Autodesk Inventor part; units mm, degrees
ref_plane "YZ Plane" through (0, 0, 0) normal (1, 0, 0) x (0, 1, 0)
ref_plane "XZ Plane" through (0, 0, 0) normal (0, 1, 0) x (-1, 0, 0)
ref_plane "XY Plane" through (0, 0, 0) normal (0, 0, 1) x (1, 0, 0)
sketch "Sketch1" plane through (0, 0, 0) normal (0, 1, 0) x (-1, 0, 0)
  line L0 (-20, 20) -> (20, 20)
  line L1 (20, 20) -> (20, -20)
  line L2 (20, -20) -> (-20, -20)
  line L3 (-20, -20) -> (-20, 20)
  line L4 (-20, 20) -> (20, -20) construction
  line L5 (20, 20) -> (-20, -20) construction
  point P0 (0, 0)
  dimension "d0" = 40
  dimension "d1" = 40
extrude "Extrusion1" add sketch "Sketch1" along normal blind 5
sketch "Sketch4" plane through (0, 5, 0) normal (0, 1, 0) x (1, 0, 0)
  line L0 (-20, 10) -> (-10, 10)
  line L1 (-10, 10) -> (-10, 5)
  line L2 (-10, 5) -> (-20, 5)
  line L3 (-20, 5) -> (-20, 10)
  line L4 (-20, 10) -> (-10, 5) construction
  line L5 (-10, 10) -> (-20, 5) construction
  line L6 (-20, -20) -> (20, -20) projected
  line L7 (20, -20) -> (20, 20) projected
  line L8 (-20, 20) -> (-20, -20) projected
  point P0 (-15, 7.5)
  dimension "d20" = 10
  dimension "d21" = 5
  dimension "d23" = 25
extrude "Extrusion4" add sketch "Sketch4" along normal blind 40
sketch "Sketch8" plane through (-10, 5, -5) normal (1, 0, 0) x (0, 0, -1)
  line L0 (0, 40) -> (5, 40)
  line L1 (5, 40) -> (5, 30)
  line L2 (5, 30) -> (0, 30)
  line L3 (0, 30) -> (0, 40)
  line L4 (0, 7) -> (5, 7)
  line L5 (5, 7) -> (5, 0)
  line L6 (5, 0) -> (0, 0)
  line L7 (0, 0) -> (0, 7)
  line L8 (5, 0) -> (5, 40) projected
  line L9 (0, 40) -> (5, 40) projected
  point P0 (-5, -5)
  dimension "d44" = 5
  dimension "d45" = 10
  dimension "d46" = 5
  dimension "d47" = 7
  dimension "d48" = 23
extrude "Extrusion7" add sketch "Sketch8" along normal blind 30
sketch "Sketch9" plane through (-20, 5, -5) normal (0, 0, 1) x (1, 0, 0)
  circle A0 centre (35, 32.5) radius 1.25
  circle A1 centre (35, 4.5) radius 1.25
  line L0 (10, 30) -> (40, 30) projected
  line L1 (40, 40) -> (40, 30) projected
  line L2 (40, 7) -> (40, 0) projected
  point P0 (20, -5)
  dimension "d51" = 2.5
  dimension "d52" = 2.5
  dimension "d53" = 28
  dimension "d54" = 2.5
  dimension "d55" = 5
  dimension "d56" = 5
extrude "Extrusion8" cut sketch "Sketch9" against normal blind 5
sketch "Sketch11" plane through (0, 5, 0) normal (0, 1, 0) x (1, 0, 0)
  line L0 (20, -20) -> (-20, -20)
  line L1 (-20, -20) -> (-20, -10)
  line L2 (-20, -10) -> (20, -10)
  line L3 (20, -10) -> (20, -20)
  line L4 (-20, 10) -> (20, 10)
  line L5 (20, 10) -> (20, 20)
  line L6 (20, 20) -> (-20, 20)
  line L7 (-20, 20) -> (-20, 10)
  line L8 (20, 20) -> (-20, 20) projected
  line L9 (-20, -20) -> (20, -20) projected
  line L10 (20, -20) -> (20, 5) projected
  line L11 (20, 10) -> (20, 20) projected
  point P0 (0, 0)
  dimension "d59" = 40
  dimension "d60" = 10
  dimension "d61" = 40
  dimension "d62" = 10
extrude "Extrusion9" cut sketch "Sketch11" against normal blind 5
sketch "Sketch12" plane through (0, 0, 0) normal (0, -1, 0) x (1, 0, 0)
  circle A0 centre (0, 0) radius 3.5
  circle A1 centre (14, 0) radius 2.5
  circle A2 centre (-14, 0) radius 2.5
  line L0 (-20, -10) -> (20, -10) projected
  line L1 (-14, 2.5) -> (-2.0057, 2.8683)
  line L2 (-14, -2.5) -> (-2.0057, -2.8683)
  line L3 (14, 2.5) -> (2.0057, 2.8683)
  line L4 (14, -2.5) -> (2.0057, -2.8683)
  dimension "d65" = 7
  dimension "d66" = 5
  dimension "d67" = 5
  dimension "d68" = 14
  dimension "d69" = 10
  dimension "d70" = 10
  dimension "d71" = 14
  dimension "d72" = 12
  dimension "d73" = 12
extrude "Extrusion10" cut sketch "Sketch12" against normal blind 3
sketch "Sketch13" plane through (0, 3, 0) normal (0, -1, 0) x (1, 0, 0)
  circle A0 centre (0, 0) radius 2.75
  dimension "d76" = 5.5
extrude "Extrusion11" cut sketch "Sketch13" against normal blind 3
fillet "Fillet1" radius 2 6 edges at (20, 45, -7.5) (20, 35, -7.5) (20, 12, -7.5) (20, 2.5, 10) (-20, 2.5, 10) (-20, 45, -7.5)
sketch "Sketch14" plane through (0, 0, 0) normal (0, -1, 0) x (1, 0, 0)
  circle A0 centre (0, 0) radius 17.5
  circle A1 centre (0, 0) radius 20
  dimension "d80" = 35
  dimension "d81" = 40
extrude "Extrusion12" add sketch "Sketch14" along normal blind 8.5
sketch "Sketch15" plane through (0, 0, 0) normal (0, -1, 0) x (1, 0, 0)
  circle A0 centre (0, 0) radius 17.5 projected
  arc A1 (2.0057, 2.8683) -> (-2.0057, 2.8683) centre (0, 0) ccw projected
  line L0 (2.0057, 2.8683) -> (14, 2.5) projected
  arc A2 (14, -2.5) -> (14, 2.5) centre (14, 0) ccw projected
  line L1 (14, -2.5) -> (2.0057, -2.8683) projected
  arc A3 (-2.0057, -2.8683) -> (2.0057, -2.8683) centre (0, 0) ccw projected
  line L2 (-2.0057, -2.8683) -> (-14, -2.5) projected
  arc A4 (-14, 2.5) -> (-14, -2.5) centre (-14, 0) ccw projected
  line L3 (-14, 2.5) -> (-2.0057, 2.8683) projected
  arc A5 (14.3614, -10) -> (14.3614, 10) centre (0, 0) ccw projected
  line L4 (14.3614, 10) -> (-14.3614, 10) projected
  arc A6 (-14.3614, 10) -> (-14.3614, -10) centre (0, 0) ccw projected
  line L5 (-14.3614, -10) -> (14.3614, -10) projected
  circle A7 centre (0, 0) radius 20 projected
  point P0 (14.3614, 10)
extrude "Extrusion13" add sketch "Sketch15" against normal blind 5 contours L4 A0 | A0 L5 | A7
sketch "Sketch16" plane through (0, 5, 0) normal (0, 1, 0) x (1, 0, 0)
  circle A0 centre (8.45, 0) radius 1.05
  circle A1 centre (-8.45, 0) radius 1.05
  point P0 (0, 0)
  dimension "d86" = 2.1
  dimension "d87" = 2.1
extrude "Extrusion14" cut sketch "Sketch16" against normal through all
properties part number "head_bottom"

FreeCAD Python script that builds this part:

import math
import FreeCAD as App
import Part
import Sketcher

V = App.Vector
Q = App.Units.Quantity


def edges_at(feature, points):
    """Names of the edges that pass closest to the given points."""
    edges = feature.Shape.Edges
    near = lambda p: min(range(len(edges)), key=lambda i: edges[i].distToShape(Part.Vertex(*p))[0])
    return sorted({f"Edge{near(p) + 1}" for p in points})

doc = App.newDocument("Part")
body = doc.addObject("PartDesign::Body", "Body")

sketch1 = doc.addObject("Sketcher::SketchObject", "Sketch")
body.addObject(sketch1)
sketch1.AttachmentSupport = (doc.XZ_Plane, [""])
sketch1.MapMode = "FlatFace"
sketch1.addGeometry([
    Part.LineSegment(V(-20, 20, 0), V(20, 20, 0)),
    Part.LineSegment(V(20, 20, 0), V(20, -20, 0)),
    Part.LineSegment(V(20, -20, 0), V(-20, -20, 0)),
    Part.LineSegment(V(-20, -20, 0), V(-20, 20, 0)),
], False)
sketch1.addConstraint([
    Sketcher.Constraint("Coincident", 0, 2, 1, 1),
    Sketcher.Constraint("Coincident", 1, 2, 2, 1),
    Sketcher.Constraint("Coincident", 2, 2, 3, 1),
    Sketcher.Constraint("Coincident", 3, 2, 0, 1),
    Sketcher.Constraint("Horizontal", 0),
    Sketcher.Constraint("Vertical", 1),
    Sketcher.Constraint("Horizontal", 2),
    Sketcher.Constraint("Vertical", 3),
    Sketcher.Constraint("Symmetric", 0, 2, 2, 2, -1, 1),
    Sketcher.Constraint("Equal", 2, 1),
    Sketcher.Constraint("DistanceX", 0, 1, 0, 2, Q("40 mm")),
])
pad1 = doc.addObject("PartDesign::Pad", "Pad")
body.addObject(pad1)
pad1.Profile = sketch1
pad1.Length = 5
pad1.Reversed = True

sketch2 = doc.addObject("Sketcher::SketchObject", "Sketch001")
body.addObject(sketch2)
sketch2.AttachmentSupport = (doc.XZ_Plane, [""])
sketch2.MapMode = "FlatFace"
sketch2.AttachmentOffset = App.Placement(V(0, 0, -5), App.Rotation())
sketch2.addGeometry([
    Part.LineSegment(V(-10, -10, 0), V(-20, -10, 0)),
    Part.LineSegment(V(-20, -10, 0), V(-20, -5, 0)),
    Part.LineSegment(V(-20, -5, 0), V(-10, -5, 0)),
    Part.LineSegment(V(-10, -5, 0), V(-10, -10, 0)),
], False)
sketch2.addConstraint([
    Sketcher.Constraint("Coincident", 0, 2, 1, 1),
    Sketcher.Constraint("Coincident", 1, 2, 2, 1),
    Sketcher.Constraint("Coincident", 2, 2, 3, 1),
    Sketcher.Constraint("Coincident", 3, 2, 0, 1),
    Sketcher.Constraint("Horizontal", 0),
    Sketcher.Constraint("Vertical", 1),
    Sketcher.Constraint("Horizontal", 2),
    Sketcher.Constraint("Vertical", 3),
    Sketcher.Constraint("DistanceX", 0, 2, 0, 1, Q("10 mm")),
    Sketcher.Constraint("DistanceY", 1, 1, 1, 2, Q("5 mm")),
    Sketcher.Constraint("DistanceY", 0, 2, -1, 1, Q("10 mm")),
    Sketcher.Constraint("DistanceX", 2, 2, -1, 1, Q("10 mm")),
])
pad2 = doc.addObject("PartDesign::Pad", "Pad001")
body.addObject(pad2)
pad2.Profile = sketch2
pad2.Length = 40
pad2.Reversed = True

sketch3 = doc.addObject("Sketcher::SketchObject", "Sketch002")
body.addObject(sketch3)
sketch3.AttachmentSupport = (doc.YZ_Plane, [""])
sketch3.MapMode = "FlatFace"
sketch3.AttachmentOffset = App.Placement(V(0, 0, -10), App.Rotation())
sketch3.addGeometry([
    Part.LineSegment(V(5, -10, 0), V(12, -10, 0)),
    Part.LineSegment(V(12, -10, 0), V(12, -5, 0)),
    Part.LineSegment(V(12, -5, 0), V(5, -5, 0)),
    Part.LineSegment(V(5, -5, 0), V(5, -10, 0)),
    Part.LineSegment(V(45, -10, 0), V(45, -5, 0)),
    Part.LineSegment(V(45, -5, 0), V(35, -5, 0)),
    Part.LineSegment(V(35, -5, 0), V(35, -10, 0)),
    Part.LineSegment(V(35, -10, 0), V(45, -10, 0)),
], False)
sketch3.addConstraint([
    Sketcher.Constraint("Coincident", 0, 2, 1, 1),
    Sketcher.Constraint("Coincident", 1, 2, 2, 1),
    Sketcher.Constraint("Coincident", 2, 2, 3, 1),
    Sketcher.Constraint("Coincident", 3, 2, 0, 1),
    Sketcher.Constraint("Coincident", 4, 2, 5, 1),
    Sketcher.Constraint("Coincident", 5, 2, 6, 1),
    Sketcher.Constraint("Coincident", 6, 2, 7, 1),
    Sketcher.Constraint("Coincident", 7, 2, 4, 1),
    Sketcher.Constraint("Horizontal", 0),
    Sketcher.Constraint("Vertical", 1),
    Sketcher.Constraint("Horizontal", 2),
    Sketcher.Constraint("Vertical", 3),
    Sketcher.Constraint("Vertical", 4),
    Sketcher.Constraint("Horizontal", 5),
    Sketcher.Constraint("Vertical", 6),
    Sketcher.Constraint("Horizontal", 7),
    Sketcher.Constraint("Horizontal", 2, 2, 4, 2),
    Sketcher.Constraint("Horizontal", 3, 2, 6, 2),
    Sketcher.Constraint("DistanceX", 0, 1, 0, 2, Q("7 mm")),
    Sketcher.Constraint("DistanceX", 5, 2, 5, 1, Q("10 mm")),
    Sketcher.Constraint("DistanceY", 1, 1, 1, 2, Q("5 mm")),
    Sketcher.Constraint("DistanceY", 0, 2, -1, 1, Q("10 mm")),
    Sketcher.Constraint("DistanceX", -1, 1, 2, 2, Q("5 mm")),
    Sketcher.Constraint("DistanceX", 1, 2, 5, 2, Q("23 mm")),
])
pad3 = doc.addObject("PartDesign::Pad", "Pad002")
body.addObject(pad3)
pad3.Profile = sketch3
pad3.Length = 30

sketch4 = doc.addObject("Sketcher::SketchObject", "Sketch003")
body.addObject(sketch4)
sketch4.AttachmentSupport = (doc.XY_Plane, [""])
sketch4.MapMode = "FlatFace"
sketch4.AttachmentOffset = App.Placement(V(0, 0, -5), App.Rotation())
sketch4.addGeometry([
    Part.Circle(V(15, 37.5, 0), V(0, 0, 1), 1.2),
    Part.Circle(V(15, 9.5, 0), V(0, 0, 1), 1.2),
], False)
sketch4.addConstraint([
    Sketcher.Constraint("Equal", 0, 1),
    Sketcher.Constraint("Vertical", 0, 3, 1, 3),
    Sketcher.Constraint("Diameter", 0, Q("2.5 mm")),
    Sketcher.Constraint("DistanceY", 1, 3, 0, 3, Q("28 mm")),
    Sketcher.Constraint("DistanceX", -1, 1, 0, 3, Q("15 mm")),
    Sketcher.Constraint("DistanceY", -1, 1, 0, 3, Q("37.5 mm")),
])
pocket1 = doc.addObject("PartDesign::Pocket", "Pocket")
body.addObject(pocket1)
pocket1.Profile = sketch4
pocket1.Length = 5

sketch5 = doc.addObject("Sketcher::SketchObject", "Sketch004")
body.addObject(sketch5)
sketch5.AttachmentSupport = (doc.XZ_Plane, [""])
sketch5.MapMode = "FlatFace"
sketch5.AttachmentOffset = App.Placement(V(0, 0, -5), App.Rotation())
sketch5.addGeometry([
    Part.LineSegment(V(-20, 20, 0), V(20, 20, 0)),
    Part.LineSegment(V(20, 20, 0), V(20, 10, 0)),
    Part.LineSegment(V(20, 10, 0), V(-20, 10, 0)),
    Part.LineSegment(V(-20, 10, 0), V(-20, 20, 0)),
    Part.LineSegment(V(-20, -20, 0), V(-20, -10, 0)),
    Part.LineSegment(V(-20, -10, 0), V(20, -10, 0)),
    Part.LineSegment(V(20, -10, 0), V(20, -20, 0)),
    Part.LineSegment(V(20, -20, 0), V(-20, -20, 0)),
], False)
sketch5.addConstraint([
    Sketcher.Constraint("Coincident", 0, 2, 1, 1),
    Sketcher.Constraint("Coincident", 1, 2, 2, 1),
    Sketcher.Constraint("Coincident", 2, 2, 3, 1),
    Sketcher.Constraint("Coincident", 3, 2, 0, 1),
    Sketcher.Constraint("Coincident", 4, 2, 5, 1),
    Sketcher.Constraint("Coincident", 5, 2, 6, 1),
    Sketcher.Constraint("Coincident", 6, 2, 7, 1),
    Sketcher.Constraint("Coincident", 7, 2, 4, 1),
    Sketcher.Constraint("Horizontal", 0),
    Sketcher.Constraint("Vertical", 1),
    Sketcher.Constraint("Horizontal", 2),
    Sketcher.Constraint("Vertical", 3),
    Sketcher.Constraint("Vertical", 4),
    Sketcher.Constraint("Horizontal", 5),
    Sketcher.Constraint("Vertical", 6),
    Sketcher.Constraint("Horizontal", 7),
    Sketcher.Constraint("Symmetric", 1, 2, 4, 2, -1, 1),
    Sketcher.Constraint("Symmetric", 3, 2, 6, 2, -1, 1),
    Sketcher.Constraint("Vertical", 3, 2, 4, 2),
    Sketcher.Constraint("DistanceX", 0, 1, 0, 2, Q("40 mm")),
    Sketcher.Constraint("DistanceY", 1, 2, 1, 1, Q("10 mm")),
    Sketcher.Constraint("DistanceY", -1, 1, 1, 2, Q("10 mm")),
])
pocket2 = doc.addObject("PartDesign::Pocket", "Pocket001")
body.addObject(pocket2)
pocket2.Profile = sketch5
pocket2.Length = 5
pocket2.Reversed = True

sketch6 = doc.addObject("Sketcher::SketchObject", "Sketch005")
body.addObject(sketch6)
sketch6.AttachmentSupport = (doc.XZ_Plane, [""])
sketch6.MapMode = "FlatFace"
sketch6.addGeometry([
    Part.ArcOfCircle(Part.Circle(V(0, 0, 0), V(0, 0, 1), 3.5), math.radians(-125), math.radians(-55)),
    Part.LineSegment(V(2, -2.9, 0), V(14, -2.5, 0)),
    Part.ArcOfCircle(Part.Circle(V(14, 0, 0), V(0, 0, 1), 2.5), math.radians(-90), math.radians(90)),
    Part.LineSegment(V(14, 2.5, 0), V(2, 2.9, 0)),
    Part.ArcOfCircle(Part.Circle(V(0, 0, 0), V(0, 0, 1), 3.5), math.radians(55), math.radians(125)),
    Part.LineSegment(V(-2, 2.9, 0), V(-14, 2.5, 0)),
    Part.ArcOfCircle(Part.Circle(V(-14, 0, 0), V(0, 0, 1), 2.5), math.radians(90), math.radians(270)),
    Part.LineSegment(V(-14, -2.5, 0), V(-2, -2.9, 0)),
], False)
sketch6.addConstraint([
    Sketcher.Constraint("Coincident", 0, 2, 1, 1),
    Sketcher.Constraint("Coincident", 1, 2, 2, 1),
    Sketcher.Constraint("Coincident", 2, 2, 3, 1),
    Sketcher.Constraint("Coincident", 3, 2, 4, 1),
    Sketcher.Constraint("Coincident", 4, 2, 5, 1),
    Sketcher.Constraint("Coincident", 5, 2, 6, 1),
    Sketcher.Constraint("Coincident", 6, 2, 7, 1),
    Sketcher.Constraint("Coincident", 7, 2, 0, 1),
    Sketcher.Constraint("Coincident", 0, 3, -1, 1),
    Sketcher.Constraint("Coincident", 4, 3, -1, 1),
    Sketcher.Constraint("Equal", 0, 4),
    Sketcher.Constraint("Equal", 2, 6),
    Sketcher.Constraint("Symmetric", 2, 3, 6, 3, -1, 1),
    Sketcher.Constraint("Symmetric", 2, 2, 5, 2, -2),
    Sketcher.Constraint("Parallel", 1, 5),
    Sketcher.Constraint("Parallel", 3, 7),
    Sketcher.Constraint("Horizontal", 3, 2, 4, 2),
    Sketcher.Constraint("Horizontal", 0, 2, 7, 2),
    Sketcher.Constraint("Vertical", 2, 3, 1, 2),
    Sketcher.Constraint("Vertical", 1, 2, 2, 2),
    Sketcher.Constraint("Radius", 0, Q("3.5 mm")),
    Sketcher.Constraint("Radius", 2, Q("2.5 mm")),
    Sketcher.Constraint("Distance", 1, Q("12 mm")),
    Sketcher.Constraint("DistanceX", -1, 1, 2, 3, Q("14 mm")),
])
pocket3 = doc.addObject("PartDesign::Pocket", "Pocket002")
body.addObject(pocket3)
pocket3.Profile = sketch6
pocket3.Length = 3

sketch7 = doc.addObject("Sketcher::SketchObject", "Sketch006")
body.addObject(sketch7)
sketch7.AttachmentSupport = (doc.XZ_Plane, [""])
sketch7.MapMode = "FlatFace"
sketch7.AttachmentOffset = App.Placement(V(0, 0, -3), App.Rotation())
sketch7.addGeometry(Part.Circle(V(0, 0, 0), V(0, 0, 1), 2.8), False)
sketch7.addConstraint([
    Sketcher.Constraint("Coincident", 0, 3, -1, 1),
    Sketcher.Constraint("Diameter", 0, Q("5.5 mm")),
])
pocket4 = doc.addObject("PartDesign::Pocket", "Pocket003")
body.addObject(pocket4)
pocket4.Profile = sketch7
pocket4.Length = 3
doc.recompute()

fillet = doc.addObject("PartDesign::Fillet", "Fillet")
body.addObject(fillet)
fillet.Base = (pocket4, edges_at(pocket4, [
    (20, 45, -7.5),
    (20, 35, -7.5),
    (20, 12, -7.5),
    (20, 2.5, 10),
    (-20, 2.5, 10),
    (-20, 45, -7.5),
]))
fillet.Radius = 2

sketch8 = doc.addObject("Sketcher::SketchObject", "Sketch007")
body.addObject(sketch8)
sketch8.AttachmentSupport = (doc.XZ_Plane, [""])
sketch8.MapMode = "FlatFace"
sketch8.addGeometry([
    Part.Circle(V(0, 0, 0), V(0, 0, 1), 20),
    Part.Circle(V(0, 0, 0), V(0, 0, 1), 18),
], False)
sketch8.addConstraint([
    Sketcher.Constraint("Coincident", 0, 3, -1, 1),
    Sketcher.Constraint("Coincident", 1, 3, -1, 1),
    Sketcher.Constraint("Diameter", 0, Q("40 mm")),
    Sketcher.Constraint("Diameter", 1, Q("35 mm")),
])
pad4 = doc.addObject("PartDesign::Pad", "Pad003")
body.addObject(pad4)
pad4.Profile = sketch8
pad4.Length = 8.5

sketch9 = doc.addObject("Sketcher::SketchObject", "Sketch008")
body.addObject(sketch9)
sketch9.AttachmentSupport = (doc.XZ_Plane, [""])
sketch9.MapMode = "FlatFace"
sketch9.addGeometry([
    Part.Circle(V(0, 0, 0), V(0, 0, 1), 20),
    Part.LineSegment(V(-14, 10, 0), V(14, 10, 0)),
    Part.ArcOfCircle(Part.Circle(V(0, 0, 0), V(0, 0, 1), 18), math.radians(-35), math.radians(35)),
    Part.LineSegment(V(14, -10, 0), V(-14, -10, 0)),
    Part.ArcOfCircle(Part.Circle(V(0, 0, 0), V(0, 0, 1), 18), math.radians(145), math.radians(215)),
], False)
sketch9.addConstraint([
    Sketcher.Constraint("Coincident", 1, 2, 2, 2),
    Sketcher.Constraint("Coincident", 2, 1, 3, 1),
    Sketcher.Constraint("Coincident", 3, 2, 4, 2),
    Sketcher.Constraint("Coincident", 4, 1, 1, 1),
    Sketcher.Constraint("Horizontal", 1),
    Sketcher.Constraint("Horizontal", 3),
    Sketcher.Constraint("Coincident", 0, 3, -1, 1),
    Sketcher.Constraint("Coincident", 2, 3, -1, 1),
    Sketcher.Constraint("Coincident", 4, 3, -1, 1),
    Sketcher.Constraint("Equal", 2, 4),
    Sketcher.Constraint("Vertical", 1, 2, 2, 1),
    Sketcher.Constraint("Diameter", 0, Q("40 mm")),
    Sketcher.Constraint("Radius", 2, Q("17.5 mm")),
    Sketcher.Constraint("DistanceY", -1, 1, 1, 2, Q("10 mm")),
])
pad5 = doc.addObject("PartDesign::Pad", "Pad004")
body.addObject(pad5)
pad5.Profile = sketch9
pad5.Length = 5
pad5.Reversed = True

sketch10 = doc.addObject("Sketcher::SketchObject", "Sketch009")
body.addObject(sketch10)
sketch10.AttachmentSupport = (doc.XZ_Plane, [""])
sketch10.MapMode = "FlatFace"
sketch10.AttachmentOffset = App.Placement(V(0, 0, -5), App.Rotation())
sketch10.addGeometry([
    Part.Circle(V(8.4, 0, 0), V(0, 0, 1), 1.1),
    Part.Circle(V(-8.4, 0, 0), V(0, 0, 1), 1.1),
], False)
sketch10.addConstraint([
    Sketcher.Constraint("Equal", 0, 1),
    Sketcher.Constraint("Symmetric", 0, 3, 1, 3, -1, 1),
    Sketcher.Constraint("PointOnObject", 0, 3, -1),
    Sketcher.Constraint("Diameter", 0, Q("2.1 mm")),
    Sketcher.Constraint("DistanceX", 1, 3, 0, 3, Q("16.9 mm")),
])
pocket5 = doc.addObject("PartDesign::Pocket", "Pocket004")
body.addObject(pocket5)
pocket5.Profile = sketch10
pocket5.Type = "ThroughAll"
pocket5.Reversed = True

doc.recompute()
